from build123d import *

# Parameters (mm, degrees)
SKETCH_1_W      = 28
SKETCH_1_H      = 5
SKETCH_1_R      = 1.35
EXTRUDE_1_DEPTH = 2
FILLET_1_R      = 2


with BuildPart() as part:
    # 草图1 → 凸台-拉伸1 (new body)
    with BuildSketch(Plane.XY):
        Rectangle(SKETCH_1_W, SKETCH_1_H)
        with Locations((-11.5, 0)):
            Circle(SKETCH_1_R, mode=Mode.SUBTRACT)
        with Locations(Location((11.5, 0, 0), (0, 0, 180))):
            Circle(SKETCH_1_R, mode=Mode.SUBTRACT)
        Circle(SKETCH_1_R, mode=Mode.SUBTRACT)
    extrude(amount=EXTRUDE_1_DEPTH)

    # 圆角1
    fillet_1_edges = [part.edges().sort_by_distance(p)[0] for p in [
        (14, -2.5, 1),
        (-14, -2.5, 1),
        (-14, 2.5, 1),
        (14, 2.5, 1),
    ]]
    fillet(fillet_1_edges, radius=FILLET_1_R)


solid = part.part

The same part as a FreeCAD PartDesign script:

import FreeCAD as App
import Part
import Sketcher

V = App.Vector


def edges_at(feature, points):
    """Names of the edges that pass closest to the given points."""
    edges = feature.Shape.Edges
    near = lambda p: min(range(len(edges)), key=lambda i: edges[i].distToShape(Part.Vertex(*p))[0])
    return sorted({f"Edge{near(p) + 1}" for p in points})


def add_polygon(sketch, points):
    """Adds a closed chain of lines whose ends are joined by coincident constraints."""
    first, n = sketch.GeometryCount, len(points)
    for a, b in zip(points, points[1:] + points[:1]):
        sketch.addGeometry(Part.LineSegment(App.Vector(*a, 0), App.Vector(*b, 0)), False)
    for i in range(n):
        sketch.addConstraint(Sketcher.Constraint("Coincident", first + i, 2, first + (i + 1) % n, 1))

doc = App.newDocument("Part")
body = doc.addObject("PartDesign::Body", "Body")

sketch1 = body.newObject("Sketcher::SketchObject", "Sketch")
sketch1.AttachmentSupport = (doc.getObject("XY_Plane"), [""])
sketch1.MapMode = "FlatFace"
add_polygon(sketch1, [(-14, 2.5), (-14, -2.5), (14, -2.5), (14, 2.5)])
sketch1.addGeometry(Part.Circle(V(-11.5, 0, 0), V(0, 0, 1), 1.4), False)
sketch1.addGeometry(Part.Circle(V(0, 0, 0), V(0, 0, 1), 1.4), False)
sketch1.addGeometry(Part.Circle(V(11.5, 0, 0), V(0, 0, 1), 1.4), False)
sketch1.addConstraint([
    Sketcher.Constraint("Vertical", 0),
    Sketcher.Constraint("Horizontal", 1),
    Sketcher.Constraint("Vertical", 2),
    Sketcher.Constraint("Horizontal", 3),
    Sketcher.Constraint("Coincident", 5, 3, -1, 1),
    Sketcher.Constraint("Equal", 4, 5),
    Sketcher.Constraint("Equal", 5, 6),
    Sketcher.Constraint("Symmetric", 4, 3, 6, 3, -1, 1),
    Sketcher.Constraint("Symmetric", 0, 2, 2, 2, -1, 1),
    Sketcher.Constraint("PointOnObject", 4, 3, -1),
    Sketcher.Constraint("Diameter", 4, 2.7),
    Sketcher.Constraint("DistanceX", 1, 1, 1, 2, 28.0),
    Sketcher.Constraint("DistanceY", 0, 2, 0, 1, 5.0),
    Sketcher.Constraint("DistanceX", 4, 3, 6, 3, 23.0),
])
pad1 = body.newObject("PartDesign::Pad", "Pad")
pad1.Profile = sketch1
pad1.Length = 2
doc.recompute()

fillet = body.newObject("PartDesign::Fillet", "Fillet")
fillet.Base = (pad1, edges_at(pad1, [
    (14, -2.5, 1),
    (-14, -2.5, 1),
    (-14, 2.5, 1),
    (14, 2.5, 1),
]))
fillet.Radius = 2

doc.recompute()
